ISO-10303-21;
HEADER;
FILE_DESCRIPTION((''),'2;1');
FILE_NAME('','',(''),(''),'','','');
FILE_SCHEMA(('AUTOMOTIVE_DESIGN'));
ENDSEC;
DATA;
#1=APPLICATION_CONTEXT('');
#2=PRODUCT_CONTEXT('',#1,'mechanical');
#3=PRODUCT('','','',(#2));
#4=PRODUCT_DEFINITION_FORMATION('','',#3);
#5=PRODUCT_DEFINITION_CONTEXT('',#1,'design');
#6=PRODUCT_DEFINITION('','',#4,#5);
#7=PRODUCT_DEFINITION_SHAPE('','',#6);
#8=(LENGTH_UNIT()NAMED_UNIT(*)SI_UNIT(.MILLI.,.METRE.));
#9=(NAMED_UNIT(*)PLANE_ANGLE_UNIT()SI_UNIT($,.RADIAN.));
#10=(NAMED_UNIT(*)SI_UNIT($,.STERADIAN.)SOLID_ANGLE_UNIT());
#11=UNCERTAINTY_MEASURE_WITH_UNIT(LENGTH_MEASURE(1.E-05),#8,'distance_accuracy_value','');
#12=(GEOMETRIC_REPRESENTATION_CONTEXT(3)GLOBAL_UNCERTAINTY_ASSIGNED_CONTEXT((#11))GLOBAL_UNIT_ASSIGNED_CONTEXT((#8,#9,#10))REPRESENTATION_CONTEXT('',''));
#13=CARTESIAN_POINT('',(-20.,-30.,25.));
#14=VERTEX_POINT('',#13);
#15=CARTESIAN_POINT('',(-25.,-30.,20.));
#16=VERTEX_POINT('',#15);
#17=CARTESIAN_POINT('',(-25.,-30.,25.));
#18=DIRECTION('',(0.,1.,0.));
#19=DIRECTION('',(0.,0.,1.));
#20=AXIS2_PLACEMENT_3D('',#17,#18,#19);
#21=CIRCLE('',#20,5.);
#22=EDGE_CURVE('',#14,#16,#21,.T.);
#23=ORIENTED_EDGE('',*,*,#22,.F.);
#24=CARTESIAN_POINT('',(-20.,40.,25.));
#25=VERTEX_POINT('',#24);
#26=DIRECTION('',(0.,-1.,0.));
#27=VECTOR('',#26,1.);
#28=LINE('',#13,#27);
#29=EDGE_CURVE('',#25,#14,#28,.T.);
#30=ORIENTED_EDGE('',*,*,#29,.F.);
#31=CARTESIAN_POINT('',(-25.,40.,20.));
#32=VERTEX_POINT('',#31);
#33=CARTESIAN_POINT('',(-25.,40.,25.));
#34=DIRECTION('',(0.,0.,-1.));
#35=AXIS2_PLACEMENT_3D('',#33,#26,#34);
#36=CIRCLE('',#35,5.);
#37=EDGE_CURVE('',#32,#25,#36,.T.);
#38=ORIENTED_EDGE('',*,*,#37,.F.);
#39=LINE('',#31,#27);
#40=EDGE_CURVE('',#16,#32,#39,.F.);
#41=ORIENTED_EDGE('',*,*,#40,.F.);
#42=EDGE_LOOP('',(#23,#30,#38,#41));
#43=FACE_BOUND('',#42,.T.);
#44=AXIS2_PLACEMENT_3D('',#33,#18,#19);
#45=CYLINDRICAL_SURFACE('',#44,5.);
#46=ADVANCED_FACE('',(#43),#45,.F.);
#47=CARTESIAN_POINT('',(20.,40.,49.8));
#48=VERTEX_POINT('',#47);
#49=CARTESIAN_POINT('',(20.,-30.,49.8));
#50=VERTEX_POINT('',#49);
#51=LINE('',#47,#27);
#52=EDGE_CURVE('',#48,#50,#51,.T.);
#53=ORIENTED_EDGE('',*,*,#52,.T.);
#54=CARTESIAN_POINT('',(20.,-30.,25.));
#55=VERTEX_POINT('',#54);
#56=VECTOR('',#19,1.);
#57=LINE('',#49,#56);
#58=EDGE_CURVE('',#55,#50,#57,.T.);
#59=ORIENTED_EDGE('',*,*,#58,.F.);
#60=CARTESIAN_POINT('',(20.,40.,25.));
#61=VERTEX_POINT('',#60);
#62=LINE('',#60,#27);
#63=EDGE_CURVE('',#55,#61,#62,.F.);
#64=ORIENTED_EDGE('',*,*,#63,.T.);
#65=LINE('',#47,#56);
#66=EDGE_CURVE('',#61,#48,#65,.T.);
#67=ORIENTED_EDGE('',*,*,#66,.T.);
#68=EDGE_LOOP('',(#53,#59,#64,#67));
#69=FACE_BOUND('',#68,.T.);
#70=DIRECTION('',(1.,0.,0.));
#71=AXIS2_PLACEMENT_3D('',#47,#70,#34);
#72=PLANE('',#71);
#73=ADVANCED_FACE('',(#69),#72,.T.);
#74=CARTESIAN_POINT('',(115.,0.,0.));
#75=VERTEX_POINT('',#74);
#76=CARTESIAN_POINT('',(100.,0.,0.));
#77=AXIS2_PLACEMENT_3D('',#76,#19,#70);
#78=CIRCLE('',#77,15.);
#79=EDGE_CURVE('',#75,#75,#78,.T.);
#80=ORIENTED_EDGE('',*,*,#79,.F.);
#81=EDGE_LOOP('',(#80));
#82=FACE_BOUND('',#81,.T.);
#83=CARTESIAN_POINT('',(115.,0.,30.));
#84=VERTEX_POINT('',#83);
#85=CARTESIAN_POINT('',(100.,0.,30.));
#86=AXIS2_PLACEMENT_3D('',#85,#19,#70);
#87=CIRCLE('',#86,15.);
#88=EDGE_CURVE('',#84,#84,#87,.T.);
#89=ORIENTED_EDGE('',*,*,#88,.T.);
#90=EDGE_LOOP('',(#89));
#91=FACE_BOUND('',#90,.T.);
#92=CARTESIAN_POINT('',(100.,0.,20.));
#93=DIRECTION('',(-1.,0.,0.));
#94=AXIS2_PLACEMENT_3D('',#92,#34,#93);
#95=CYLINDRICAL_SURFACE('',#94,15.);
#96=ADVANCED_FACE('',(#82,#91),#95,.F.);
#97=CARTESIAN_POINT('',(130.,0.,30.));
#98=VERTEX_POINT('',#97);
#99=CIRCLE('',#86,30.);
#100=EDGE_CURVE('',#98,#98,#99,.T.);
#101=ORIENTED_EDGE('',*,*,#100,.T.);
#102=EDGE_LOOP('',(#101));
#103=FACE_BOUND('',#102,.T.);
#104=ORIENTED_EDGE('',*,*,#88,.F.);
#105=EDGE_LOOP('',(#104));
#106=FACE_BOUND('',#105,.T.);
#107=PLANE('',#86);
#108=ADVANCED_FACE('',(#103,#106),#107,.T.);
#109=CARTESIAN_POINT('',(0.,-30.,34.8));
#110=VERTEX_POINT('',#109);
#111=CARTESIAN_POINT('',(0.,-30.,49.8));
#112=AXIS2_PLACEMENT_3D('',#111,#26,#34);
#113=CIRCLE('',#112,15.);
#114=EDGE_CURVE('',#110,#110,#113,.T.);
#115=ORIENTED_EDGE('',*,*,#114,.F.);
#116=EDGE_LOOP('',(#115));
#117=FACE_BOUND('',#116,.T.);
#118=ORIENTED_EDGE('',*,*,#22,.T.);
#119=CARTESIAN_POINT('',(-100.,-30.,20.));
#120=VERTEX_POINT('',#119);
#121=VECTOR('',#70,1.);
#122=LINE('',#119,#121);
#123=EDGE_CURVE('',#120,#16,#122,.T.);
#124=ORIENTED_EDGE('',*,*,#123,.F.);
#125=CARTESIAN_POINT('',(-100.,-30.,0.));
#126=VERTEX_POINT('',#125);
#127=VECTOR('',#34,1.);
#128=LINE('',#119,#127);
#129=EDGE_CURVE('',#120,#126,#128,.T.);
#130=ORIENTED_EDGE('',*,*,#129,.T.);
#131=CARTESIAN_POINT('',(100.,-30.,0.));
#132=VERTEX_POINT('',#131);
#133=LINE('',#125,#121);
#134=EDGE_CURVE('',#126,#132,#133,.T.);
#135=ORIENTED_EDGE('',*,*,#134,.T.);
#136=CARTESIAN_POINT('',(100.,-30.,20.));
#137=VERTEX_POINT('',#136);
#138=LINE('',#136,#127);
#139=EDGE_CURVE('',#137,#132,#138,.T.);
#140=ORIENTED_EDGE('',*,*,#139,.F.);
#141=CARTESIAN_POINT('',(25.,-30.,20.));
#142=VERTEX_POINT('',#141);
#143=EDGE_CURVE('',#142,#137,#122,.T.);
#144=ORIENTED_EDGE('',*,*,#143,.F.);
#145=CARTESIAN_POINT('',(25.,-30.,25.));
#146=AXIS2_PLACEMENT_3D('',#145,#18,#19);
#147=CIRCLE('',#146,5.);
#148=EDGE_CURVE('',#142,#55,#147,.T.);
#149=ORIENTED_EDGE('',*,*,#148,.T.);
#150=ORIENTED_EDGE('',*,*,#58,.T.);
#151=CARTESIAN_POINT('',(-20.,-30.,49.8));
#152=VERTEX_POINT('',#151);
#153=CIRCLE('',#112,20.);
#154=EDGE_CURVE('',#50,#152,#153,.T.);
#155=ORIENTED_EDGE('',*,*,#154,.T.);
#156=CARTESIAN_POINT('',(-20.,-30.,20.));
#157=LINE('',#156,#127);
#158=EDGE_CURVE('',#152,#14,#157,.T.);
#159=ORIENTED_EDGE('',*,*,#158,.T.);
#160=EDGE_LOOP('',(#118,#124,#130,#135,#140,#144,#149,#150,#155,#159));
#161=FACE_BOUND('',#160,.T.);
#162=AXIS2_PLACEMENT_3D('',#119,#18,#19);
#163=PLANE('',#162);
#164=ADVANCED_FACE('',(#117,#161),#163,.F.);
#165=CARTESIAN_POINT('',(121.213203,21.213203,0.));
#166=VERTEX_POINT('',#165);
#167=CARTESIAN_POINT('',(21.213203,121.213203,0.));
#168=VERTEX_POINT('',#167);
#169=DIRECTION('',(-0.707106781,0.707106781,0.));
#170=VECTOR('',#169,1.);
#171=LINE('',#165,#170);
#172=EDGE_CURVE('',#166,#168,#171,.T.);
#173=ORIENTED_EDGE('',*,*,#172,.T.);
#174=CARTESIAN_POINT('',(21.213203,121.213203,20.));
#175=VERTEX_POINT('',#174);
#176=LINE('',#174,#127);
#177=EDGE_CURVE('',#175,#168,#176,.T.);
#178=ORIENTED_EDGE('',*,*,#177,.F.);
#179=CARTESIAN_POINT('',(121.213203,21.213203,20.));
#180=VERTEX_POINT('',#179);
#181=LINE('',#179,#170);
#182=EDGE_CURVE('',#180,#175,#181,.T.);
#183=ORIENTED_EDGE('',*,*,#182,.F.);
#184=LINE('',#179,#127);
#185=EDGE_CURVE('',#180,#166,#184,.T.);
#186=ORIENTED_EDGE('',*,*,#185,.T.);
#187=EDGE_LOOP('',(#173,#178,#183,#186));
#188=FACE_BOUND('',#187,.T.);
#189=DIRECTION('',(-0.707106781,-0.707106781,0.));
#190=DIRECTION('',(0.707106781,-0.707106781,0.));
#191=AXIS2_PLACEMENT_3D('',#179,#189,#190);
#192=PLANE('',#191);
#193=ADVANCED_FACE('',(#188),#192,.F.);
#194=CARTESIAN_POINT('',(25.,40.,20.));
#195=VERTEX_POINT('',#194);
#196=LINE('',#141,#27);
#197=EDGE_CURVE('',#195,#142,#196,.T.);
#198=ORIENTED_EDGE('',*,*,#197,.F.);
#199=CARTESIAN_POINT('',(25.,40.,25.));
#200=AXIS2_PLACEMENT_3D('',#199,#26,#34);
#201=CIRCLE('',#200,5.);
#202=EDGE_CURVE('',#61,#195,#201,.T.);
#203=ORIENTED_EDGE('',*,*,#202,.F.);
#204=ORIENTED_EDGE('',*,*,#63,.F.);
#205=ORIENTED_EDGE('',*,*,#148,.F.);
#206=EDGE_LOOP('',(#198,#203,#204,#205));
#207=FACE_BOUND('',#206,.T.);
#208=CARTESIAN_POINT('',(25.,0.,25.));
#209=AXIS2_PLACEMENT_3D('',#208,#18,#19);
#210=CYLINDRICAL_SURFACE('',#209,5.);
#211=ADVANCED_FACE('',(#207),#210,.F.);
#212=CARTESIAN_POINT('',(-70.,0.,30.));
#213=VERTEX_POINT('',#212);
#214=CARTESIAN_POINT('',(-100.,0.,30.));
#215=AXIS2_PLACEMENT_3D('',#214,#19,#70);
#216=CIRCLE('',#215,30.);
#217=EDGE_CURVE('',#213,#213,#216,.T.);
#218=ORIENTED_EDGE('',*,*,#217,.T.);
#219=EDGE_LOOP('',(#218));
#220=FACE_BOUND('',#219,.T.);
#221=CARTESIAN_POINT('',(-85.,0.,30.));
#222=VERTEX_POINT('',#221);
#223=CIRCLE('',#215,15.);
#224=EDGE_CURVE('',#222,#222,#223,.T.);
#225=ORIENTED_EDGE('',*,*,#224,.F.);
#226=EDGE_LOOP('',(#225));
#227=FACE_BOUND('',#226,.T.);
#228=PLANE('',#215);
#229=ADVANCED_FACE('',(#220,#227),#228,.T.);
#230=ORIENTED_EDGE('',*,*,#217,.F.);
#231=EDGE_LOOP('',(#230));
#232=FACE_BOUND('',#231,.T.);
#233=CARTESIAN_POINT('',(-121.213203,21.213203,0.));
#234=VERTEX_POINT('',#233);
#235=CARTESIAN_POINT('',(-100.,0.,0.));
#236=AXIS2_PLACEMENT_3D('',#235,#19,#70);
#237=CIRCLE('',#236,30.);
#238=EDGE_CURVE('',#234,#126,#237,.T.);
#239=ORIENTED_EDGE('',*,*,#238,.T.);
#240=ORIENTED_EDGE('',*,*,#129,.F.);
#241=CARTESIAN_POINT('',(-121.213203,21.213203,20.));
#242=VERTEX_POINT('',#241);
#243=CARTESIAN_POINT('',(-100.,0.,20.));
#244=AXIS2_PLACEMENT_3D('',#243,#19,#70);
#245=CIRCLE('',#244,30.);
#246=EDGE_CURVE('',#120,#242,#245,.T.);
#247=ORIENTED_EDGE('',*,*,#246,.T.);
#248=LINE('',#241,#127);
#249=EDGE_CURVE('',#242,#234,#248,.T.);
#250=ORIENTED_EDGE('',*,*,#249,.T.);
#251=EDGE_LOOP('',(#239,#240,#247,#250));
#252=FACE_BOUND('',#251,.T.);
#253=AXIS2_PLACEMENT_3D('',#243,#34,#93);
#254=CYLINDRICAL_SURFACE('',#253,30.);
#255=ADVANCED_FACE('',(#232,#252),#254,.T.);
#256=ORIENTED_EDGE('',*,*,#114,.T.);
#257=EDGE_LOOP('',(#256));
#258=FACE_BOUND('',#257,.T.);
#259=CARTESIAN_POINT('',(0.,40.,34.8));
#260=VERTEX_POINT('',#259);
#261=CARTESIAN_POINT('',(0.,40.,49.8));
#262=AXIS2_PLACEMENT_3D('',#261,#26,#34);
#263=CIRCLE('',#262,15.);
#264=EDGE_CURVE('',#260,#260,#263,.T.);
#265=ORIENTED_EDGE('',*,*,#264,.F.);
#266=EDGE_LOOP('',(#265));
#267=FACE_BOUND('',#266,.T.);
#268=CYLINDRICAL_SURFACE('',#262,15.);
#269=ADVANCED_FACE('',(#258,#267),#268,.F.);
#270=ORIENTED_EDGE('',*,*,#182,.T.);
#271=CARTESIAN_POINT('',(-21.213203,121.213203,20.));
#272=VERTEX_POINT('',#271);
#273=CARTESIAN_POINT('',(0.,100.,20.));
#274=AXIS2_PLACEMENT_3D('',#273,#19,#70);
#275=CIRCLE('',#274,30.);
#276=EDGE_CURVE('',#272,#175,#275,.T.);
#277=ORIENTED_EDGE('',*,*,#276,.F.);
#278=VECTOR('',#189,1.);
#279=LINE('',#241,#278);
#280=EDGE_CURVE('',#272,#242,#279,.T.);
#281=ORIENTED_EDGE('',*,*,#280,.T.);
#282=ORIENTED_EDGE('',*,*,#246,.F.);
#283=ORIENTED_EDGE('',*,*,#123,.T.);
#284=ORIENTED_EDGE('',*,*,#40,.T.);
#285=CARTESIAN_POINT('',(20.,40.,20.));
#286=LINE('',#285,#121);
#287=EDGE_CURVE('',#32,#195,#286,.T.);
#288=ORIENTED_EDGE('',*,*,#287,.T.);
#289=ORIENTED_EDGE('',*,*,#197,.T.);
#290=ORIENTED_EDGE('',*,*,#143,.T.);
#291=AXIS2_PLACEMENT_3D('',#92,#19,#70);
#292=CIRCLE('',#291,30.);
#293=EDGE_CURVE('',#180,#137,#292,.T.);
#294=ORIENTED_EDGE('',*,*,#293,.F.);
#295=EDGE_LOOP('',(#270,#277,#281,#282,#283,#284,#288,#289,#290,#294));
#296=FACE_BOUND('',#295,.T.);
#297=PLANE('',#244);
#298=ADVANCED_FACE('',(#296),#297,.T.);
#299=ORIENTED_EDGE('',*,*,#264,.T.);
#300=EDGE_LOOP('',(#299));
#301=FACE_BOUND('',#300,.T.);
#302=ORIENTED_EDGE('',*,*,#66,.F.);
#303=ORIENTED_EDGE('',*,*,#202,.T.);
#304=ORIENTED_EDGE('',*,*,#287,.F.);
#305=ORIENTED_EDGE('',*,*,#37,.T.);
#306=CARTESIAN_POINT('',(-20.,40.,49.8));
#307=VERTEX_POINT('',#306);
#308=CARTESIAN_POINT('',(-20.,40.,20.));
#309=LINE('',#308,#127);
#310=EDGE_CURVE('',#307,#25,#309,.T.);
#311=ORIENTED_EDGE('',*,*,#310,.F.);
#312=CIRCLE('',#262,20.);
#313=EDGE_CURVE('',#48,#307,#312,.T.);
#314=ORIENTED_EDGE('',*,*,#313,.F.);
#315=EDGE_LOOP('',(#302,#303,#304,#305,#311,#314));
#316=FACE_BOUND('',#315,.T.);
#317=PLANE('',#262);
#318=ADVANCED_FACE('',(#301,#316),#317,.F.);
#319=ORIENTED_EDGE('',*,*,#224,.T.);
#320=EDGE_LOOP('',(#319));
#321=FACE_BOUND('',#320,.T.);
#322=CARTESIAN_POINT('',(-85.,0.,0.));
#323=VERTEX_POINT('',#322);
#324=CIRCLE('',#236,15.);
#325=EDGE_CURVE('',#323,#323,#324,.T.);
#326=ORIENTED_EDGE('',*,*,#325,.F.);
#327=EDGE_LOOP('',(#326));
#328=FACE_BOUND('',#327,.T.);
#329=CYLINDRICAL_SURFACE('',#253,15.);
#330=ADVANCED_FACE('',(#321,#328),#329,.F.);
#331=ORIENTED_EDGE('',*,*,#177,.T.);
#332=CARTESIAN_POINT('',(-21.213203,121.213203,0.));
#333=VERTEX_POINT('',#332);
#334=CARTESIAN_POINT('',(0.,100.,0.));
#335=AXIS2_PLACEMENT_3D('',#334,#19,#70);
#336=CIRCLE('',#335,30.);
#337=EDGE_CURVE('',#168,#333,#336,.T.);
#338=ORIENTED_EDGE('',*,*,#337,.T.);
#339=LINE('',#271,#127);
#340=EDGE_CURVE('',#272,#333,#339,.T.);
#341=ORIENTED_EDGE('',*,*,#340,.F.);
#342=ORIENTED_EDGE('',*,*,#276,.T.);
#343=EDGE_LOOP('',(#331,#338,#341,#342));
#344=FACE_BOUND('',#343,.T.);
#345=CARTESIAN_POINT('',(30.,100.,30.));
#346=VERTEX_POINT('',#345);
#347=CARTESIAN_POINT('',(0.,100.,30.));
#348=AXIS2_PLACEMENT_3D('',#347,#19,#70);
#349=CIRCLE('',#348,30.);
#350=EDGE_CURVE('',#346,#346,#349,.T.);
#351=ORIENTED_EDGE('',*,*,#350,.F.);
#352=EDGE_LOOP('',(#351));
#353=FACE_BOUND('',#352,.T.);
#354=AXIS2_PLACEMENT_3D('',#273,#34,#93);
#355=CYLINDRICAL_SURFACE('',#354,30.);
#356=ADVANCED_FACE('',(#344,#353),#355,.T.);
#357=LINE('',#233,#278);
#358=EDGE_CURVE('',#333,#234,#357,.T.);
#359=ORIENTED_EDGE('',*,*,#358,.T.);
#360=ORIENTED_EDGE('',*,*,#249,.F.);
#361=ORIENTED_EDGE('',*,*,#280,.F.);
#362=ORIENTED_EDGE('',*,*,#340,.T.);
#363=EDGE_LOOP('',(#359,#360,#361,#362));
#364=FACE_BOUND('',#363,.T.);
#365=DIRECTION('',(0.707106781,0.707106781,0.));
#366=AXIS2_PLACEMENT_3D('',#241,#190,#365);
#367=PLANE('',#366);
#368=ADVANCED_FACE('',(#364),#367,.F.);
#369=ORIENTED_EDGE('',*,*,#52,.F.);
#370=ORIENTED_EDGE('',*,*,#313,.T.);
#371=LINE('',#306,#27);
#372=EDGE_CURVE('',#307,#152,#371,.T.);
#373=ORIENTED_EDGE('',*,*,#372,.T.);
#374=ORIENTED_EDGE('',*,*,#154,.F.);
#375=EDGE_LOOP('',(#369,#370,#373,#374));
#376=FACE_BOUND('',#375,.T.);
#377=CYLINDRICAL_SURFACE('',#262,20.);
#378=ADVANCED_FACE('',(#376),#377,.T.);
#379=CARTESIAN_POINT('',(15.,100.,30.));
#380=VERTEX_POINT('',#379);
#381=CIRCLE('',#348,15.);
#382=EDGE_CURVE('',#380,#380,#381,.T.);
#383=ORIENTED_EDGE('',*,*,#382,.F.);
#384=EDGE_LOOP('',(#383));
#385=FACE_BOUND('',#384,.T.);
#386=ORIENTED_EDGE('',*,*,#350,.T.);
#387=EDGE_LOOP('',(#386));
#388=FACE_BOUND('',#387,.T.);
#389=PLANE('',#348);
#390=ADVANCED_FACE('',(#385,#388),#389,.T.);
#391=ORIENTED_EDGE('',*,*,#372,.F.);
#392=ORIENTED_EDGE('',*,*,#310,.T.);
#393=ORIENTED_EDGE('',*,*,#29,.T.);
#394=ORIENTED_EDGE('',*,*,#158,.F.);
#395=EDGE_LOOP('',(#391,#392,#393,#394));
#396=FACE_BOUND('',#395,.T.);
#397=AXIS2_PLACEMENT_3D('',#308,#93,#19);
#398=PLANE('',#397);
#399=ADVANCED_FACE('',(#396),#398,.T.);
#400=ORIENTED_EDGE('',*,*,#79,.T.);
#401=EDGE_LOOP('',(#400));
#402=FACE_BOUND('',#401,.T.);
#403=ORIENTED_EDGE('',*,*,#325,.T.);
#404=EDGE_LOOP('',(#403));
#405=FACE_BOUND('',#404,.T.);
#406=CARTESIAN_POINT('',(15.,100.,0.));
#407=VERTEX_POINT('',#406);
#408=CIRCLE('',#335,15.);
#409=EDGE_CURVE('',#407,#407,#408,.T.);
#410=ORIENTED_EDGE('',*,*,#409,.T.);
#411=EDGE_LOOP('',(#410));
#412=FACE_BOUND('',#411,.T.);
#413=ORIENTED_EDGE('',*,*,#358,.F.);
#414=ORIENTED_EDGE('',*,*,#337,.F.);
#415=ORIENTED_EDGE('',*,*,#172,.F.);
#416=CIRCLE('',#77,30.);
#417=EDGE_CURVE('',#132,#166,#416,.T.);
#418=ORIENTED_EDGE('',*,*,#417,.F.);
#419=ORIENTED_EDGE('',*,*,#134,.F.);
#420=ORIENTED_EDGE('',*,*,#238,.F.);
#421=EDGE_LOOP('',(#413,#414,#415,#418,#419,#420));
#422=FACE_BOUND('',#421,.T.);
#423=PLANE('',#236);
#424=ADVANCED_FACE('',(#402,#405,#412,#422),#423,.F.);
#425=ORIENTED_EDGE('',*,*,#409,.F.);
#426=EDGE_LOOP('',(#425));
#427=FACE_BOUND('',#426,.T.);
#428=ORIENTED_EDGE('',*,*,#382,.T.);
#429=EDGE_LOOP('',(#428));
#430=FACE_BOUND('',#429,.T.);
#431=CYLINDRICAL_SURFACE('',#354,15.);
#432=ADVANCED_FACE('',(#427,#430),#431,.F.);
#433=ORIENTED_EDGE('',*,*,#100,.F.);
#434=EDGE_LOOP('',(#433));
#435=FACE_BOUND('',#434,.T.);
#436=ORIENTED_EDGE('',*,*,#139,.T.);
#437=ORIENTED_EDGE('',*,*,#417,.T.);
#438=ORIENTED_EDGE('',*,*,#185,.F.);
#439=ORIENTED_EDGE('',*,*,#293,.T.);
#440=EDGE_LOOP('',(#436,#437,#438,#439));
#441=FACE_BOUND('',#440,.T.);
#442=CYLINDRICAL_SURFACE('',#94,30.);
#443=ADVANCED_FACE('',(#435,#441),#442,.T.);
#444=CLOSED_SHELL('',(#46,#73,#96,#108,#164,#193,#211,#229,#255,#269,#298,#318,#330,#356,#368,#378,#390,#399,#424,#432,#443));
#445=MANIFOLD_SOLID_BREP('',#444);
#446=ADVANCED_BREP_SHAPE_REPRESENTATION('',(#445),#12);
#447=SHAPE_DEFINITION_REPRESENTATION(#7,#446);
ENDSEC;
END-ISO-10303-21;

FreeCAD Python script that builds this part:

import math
import FreeCAD as App
import Part
import Sketcher
from FreeCAD import Vector
Q = App.Units.Quantity


def edges_at(feature, points):
    """Names of the edges that pass closest to the given points."""
    edges = feature.Shape.Edges
    near = lambda p: min(range(len(edges)), key=lambda i: edges[i].distToShape(Part.Vertex(*p))[0])
    return sorted({f"Edge{near(p) + 1}" for p in points})

doc = App.newDocument("Part")
body = doc.addObject("PartDesign::Body", "Body")

# Sketch on XY plane
sketch1 = doc.addObject("Sketcher::SketchObject", "Sketch")
body.addObject(sketch1)
sketch1.AttachmentSupport = (doc.XY_Plane, [""])
sketch1.MapMode = "FlatFace"
sketch1.addGeometry([
    Part.LineSegment(Vector(-100, -30, 0), Vector(100, -30, 0)),  # 0
    Part.ArcOfCircle(Part.Circle(Vector(100, 0, 0), Vector(0, 0, 1), 30), math.radians(-90), math.radians(45)),  # 1
    Part.LineSegment(Vector(121, 21, 0), Vector(21, 121, 0)),  # 2
    Part.ArcOfCircle(Part.Circle(Vector(0, 100, 0), Vector(0, 0, 1), 30), math.radians(45), math.radians(135)),  # 3
    Part.LineSegment(Vector(-21, 121, 0), Vector(-121, 21, 0)),  # 4
    Part.ArcOfCircle(Part.Circle(Vector(-100, 0, 0), Vector(0, 0, 1), 30), math.radians(135), math.radians(270)),  # 5
    Part.Circle(Vector(-100, 0, 0), Vector(0, 0, 1), 15),  # 6
    Part.Circle(Vector(100, 0, 0), Vector(0, 0, 1), 15),  # 7
    Part.Circle(Vector(0, 100, 0), Vector(0, 0, 1), 15),  # 8
], False)
sketch1.addConstraint([
    Sketcher.Constraint("Tangent", 0, 2, 1, 1),
    Sketcher.Constraint("Tangent", 1, 2, 2, 1),
    Sketcher.Constraint("Tangent", 2, 2, 3, 1),
    Sketcher.Constraint("Tangent", 3, 2, 4, 1),
    Sketcher.Constraint("Tangent", 4, 2, 5, 1),
    Sketcher.Constraint("Tangent", 5, 2, 0, 1),
    Sketcher.Constraint("Horizontal", 0),
    Sketcher.Constraint("Coincident", 6, 3, 5, 3),
    Sketcher.Constraint("Coincident", 7, 3, 1, 3),
    Sketcher.Constraint("Coincident", 8, 3, 3, 3),
    Sketcher.Constraint("Equal", 1, 3),
    Sketcher.Constraint("Equal", 3, 5),
    Sketcher.Constraint("Equal", 6, 7),
    Sketcher.Constraint("Equal", 7, 8),
    Sketcher.Constraint("Symmetric", 1, 3, 5, 3, -1, 1),
    Sketcher.Constraint("PointOnObject", 3, 3, -2),
    Sketcher.Constraint("Perpendicular", 2, 4),
    Sketcher.Constraint("Diameter", 6, Q("30 mm")),
    Sketcher.Constraint("Radius", 1, Q("30 mm")),
    Sketcher.Constraint("DistanceX", 0, 1, 0, 2, Q("200 mm")),
])
pad1 = doc.addObject("PartDesign::Pad", "Pad")
body.addObject(pad1)
pad1.Profile = sketch1
pad1.Length = 20

# Sketch on XY plane
sketch2 = doc.addObject("Sketcher::SketchObject", "Sketch001")
body.addObject(sketch2)
sketch2.AttachmentSupport = (doc.XY_Plane, [""])
sketch2.MapMode = "FlatFace"
sketch2.AttachmentOffset = App.Placement(Vector(0, 0, 20), App.Rotation())
sketch2.addGeometry([
    Part.Circle(Vector(-100, 0, 0), Vector(0, 0, 1), 30),  # 0
    Part.Circle(Vector(-100, 0, 0), Vector(0, 0, 1), 15),  # 1
    Part.Circle(Vector(100, 0, 0), Vector(0, 0, 1), 30),  # 2
    Part.Circle(Vector(100, 0, 0), Vector(0, 0, 1), 15),  # 3
    Part.Circle(Vector(0, 100, 0), Vector(0, 0, 1), 30),  # 4
    Part.Circle(Vector(0, 100, 0), Vector(0, 0, 1), 15),  # 5
], False)
sketch2.addConstraint([
    Sketcher.Constraint("Coincident", 1, 3, 0, 3),
    Sketcher.Constraint("Coincident", 3, 3, 2, 3),
    Sketcher.Constraint("Coincident", 5, 3, 4, 3),
    Sketcher.Constraint("Equal", 0, 2),
    Sketcher.Constraint("Equal", 1, 3),
    Sketcher.Constraint("Equal", 2, 4),
    Sketcher.Constraint("Equal", 3, 5),
    Sketcher.Constraint("Symmetric", 0, 3, 2, 3, -1, 1),
    Sketcher.Constraint("PointOnObject", 0, 3, -1),
    Sketcher.Constraint("PointOnObject", 4, 3, -2),
    Sketcher.Constraint("Diameter", 0, Q("60 mm")),
    Sketcher.Constraint("Diameter", 1, Q("30 mm")),
    Sketcher.Constraint("DistanceX", 0, 3, -1, 1, Q("100 mm")),
    Sketcher.Constraint("DistanceY", -1, 1, 4, 3, Q("100 mm")),
])
pad2 = doc.addObject("PartDesign::Pad", "Pad001")
body.addObject(pad2)
pad2.Profile = sketch2
pad2.Length = 10

# Sketch on XZ plane
sketch3 = doc.addObject("Sketcher::SketchObject", "Sketch002")
body.addObject(sketch3)
sketch3.AttachmentSupport = (doc.XZ_Plane, [""])
sketch3.MapMode = "FlatFace"
sketch3.AttachmentOffset = App.Placement(Vector(0, 0, 30), App.Rotation())
sketch3.addGeometry([
    Part.LineSegment(Vector(20, 20, 0), Vector(20, 50, 0)),  # 0
    Part.ArcOfCircle(Part.Circle(Vector(0, 50, 0), Vector(0, 0, 1), 20), math.radians(0), math.radians(180)),  # 1
    Part.LineSegment(Vector(-20, 50, 0), Vector(-20, 20, 0)),  # 2
    Part.LineSegment(Vector(-20, 20, 0), Vector(20, 20, 0)),  # 3
    Part.Circle(Vector(0, 50, 0), Vector(0, 0, 1), 15),  # 4
], False)
sketch3.addConstraint([
    Sketcher.Constraint("Tangent", 0, 2, 1, 1),
    Sketcher.Constraint("Tangent", 1, 2, 2, 1),
    Sketcher.Constraint("Coincident", 2, 2, 3, 1),
    Sketcher.Constraint("Coincident", 3, 2, 0, 1),
    Sketcher.Constraint("Vertical", 0),
    Sketcher.Constraint("Vertical", 2),
    Sketcher.Constraint("Horizontal", 3),
    Sketcher.Constraint("Coincident", 4, 3, 1, 3),
    Sketcher.Constraint("PointOnObject", 1, 3, -2),
    Sketcher.Constraint("Diameter", 4, Q("30 mm")),
    Sketcher.Constraint("Radius", 1, Q("20 mm")),
    Sketcher.Constraint("DistanceY", 0, 1, 0, 2, Q("29.8 mm")),
    Sketcher.Constraint("DistanceY", -1, 1, 2, 2, Q("20 mm")),
])
pad3 = doc.addObject("PartDesign::Pad", "Pad002")
body.addObject(pad3)
pad3.Profile = sketch3
pad3.Length = 70
pad3.Reversed = True
doc.recompute()

fillet = doc.addObject("PartDesign::Fillet", "Fillet")
body.addObject(fillet)
fillet.Base = (pad3, edges_at(pad3, [(20, 5, 20)]))
fillet.Radius = 5
doc.recompute()

fillet2 = doc.addObject("PartDesign::Fillet", "Fillet001")
body.addObject(fillet2)
fillet2.Base = (fillet, edges_at(fillet, [(-20, 5, 20)]))
fillet2.Radius = 5

doc.recompute()
